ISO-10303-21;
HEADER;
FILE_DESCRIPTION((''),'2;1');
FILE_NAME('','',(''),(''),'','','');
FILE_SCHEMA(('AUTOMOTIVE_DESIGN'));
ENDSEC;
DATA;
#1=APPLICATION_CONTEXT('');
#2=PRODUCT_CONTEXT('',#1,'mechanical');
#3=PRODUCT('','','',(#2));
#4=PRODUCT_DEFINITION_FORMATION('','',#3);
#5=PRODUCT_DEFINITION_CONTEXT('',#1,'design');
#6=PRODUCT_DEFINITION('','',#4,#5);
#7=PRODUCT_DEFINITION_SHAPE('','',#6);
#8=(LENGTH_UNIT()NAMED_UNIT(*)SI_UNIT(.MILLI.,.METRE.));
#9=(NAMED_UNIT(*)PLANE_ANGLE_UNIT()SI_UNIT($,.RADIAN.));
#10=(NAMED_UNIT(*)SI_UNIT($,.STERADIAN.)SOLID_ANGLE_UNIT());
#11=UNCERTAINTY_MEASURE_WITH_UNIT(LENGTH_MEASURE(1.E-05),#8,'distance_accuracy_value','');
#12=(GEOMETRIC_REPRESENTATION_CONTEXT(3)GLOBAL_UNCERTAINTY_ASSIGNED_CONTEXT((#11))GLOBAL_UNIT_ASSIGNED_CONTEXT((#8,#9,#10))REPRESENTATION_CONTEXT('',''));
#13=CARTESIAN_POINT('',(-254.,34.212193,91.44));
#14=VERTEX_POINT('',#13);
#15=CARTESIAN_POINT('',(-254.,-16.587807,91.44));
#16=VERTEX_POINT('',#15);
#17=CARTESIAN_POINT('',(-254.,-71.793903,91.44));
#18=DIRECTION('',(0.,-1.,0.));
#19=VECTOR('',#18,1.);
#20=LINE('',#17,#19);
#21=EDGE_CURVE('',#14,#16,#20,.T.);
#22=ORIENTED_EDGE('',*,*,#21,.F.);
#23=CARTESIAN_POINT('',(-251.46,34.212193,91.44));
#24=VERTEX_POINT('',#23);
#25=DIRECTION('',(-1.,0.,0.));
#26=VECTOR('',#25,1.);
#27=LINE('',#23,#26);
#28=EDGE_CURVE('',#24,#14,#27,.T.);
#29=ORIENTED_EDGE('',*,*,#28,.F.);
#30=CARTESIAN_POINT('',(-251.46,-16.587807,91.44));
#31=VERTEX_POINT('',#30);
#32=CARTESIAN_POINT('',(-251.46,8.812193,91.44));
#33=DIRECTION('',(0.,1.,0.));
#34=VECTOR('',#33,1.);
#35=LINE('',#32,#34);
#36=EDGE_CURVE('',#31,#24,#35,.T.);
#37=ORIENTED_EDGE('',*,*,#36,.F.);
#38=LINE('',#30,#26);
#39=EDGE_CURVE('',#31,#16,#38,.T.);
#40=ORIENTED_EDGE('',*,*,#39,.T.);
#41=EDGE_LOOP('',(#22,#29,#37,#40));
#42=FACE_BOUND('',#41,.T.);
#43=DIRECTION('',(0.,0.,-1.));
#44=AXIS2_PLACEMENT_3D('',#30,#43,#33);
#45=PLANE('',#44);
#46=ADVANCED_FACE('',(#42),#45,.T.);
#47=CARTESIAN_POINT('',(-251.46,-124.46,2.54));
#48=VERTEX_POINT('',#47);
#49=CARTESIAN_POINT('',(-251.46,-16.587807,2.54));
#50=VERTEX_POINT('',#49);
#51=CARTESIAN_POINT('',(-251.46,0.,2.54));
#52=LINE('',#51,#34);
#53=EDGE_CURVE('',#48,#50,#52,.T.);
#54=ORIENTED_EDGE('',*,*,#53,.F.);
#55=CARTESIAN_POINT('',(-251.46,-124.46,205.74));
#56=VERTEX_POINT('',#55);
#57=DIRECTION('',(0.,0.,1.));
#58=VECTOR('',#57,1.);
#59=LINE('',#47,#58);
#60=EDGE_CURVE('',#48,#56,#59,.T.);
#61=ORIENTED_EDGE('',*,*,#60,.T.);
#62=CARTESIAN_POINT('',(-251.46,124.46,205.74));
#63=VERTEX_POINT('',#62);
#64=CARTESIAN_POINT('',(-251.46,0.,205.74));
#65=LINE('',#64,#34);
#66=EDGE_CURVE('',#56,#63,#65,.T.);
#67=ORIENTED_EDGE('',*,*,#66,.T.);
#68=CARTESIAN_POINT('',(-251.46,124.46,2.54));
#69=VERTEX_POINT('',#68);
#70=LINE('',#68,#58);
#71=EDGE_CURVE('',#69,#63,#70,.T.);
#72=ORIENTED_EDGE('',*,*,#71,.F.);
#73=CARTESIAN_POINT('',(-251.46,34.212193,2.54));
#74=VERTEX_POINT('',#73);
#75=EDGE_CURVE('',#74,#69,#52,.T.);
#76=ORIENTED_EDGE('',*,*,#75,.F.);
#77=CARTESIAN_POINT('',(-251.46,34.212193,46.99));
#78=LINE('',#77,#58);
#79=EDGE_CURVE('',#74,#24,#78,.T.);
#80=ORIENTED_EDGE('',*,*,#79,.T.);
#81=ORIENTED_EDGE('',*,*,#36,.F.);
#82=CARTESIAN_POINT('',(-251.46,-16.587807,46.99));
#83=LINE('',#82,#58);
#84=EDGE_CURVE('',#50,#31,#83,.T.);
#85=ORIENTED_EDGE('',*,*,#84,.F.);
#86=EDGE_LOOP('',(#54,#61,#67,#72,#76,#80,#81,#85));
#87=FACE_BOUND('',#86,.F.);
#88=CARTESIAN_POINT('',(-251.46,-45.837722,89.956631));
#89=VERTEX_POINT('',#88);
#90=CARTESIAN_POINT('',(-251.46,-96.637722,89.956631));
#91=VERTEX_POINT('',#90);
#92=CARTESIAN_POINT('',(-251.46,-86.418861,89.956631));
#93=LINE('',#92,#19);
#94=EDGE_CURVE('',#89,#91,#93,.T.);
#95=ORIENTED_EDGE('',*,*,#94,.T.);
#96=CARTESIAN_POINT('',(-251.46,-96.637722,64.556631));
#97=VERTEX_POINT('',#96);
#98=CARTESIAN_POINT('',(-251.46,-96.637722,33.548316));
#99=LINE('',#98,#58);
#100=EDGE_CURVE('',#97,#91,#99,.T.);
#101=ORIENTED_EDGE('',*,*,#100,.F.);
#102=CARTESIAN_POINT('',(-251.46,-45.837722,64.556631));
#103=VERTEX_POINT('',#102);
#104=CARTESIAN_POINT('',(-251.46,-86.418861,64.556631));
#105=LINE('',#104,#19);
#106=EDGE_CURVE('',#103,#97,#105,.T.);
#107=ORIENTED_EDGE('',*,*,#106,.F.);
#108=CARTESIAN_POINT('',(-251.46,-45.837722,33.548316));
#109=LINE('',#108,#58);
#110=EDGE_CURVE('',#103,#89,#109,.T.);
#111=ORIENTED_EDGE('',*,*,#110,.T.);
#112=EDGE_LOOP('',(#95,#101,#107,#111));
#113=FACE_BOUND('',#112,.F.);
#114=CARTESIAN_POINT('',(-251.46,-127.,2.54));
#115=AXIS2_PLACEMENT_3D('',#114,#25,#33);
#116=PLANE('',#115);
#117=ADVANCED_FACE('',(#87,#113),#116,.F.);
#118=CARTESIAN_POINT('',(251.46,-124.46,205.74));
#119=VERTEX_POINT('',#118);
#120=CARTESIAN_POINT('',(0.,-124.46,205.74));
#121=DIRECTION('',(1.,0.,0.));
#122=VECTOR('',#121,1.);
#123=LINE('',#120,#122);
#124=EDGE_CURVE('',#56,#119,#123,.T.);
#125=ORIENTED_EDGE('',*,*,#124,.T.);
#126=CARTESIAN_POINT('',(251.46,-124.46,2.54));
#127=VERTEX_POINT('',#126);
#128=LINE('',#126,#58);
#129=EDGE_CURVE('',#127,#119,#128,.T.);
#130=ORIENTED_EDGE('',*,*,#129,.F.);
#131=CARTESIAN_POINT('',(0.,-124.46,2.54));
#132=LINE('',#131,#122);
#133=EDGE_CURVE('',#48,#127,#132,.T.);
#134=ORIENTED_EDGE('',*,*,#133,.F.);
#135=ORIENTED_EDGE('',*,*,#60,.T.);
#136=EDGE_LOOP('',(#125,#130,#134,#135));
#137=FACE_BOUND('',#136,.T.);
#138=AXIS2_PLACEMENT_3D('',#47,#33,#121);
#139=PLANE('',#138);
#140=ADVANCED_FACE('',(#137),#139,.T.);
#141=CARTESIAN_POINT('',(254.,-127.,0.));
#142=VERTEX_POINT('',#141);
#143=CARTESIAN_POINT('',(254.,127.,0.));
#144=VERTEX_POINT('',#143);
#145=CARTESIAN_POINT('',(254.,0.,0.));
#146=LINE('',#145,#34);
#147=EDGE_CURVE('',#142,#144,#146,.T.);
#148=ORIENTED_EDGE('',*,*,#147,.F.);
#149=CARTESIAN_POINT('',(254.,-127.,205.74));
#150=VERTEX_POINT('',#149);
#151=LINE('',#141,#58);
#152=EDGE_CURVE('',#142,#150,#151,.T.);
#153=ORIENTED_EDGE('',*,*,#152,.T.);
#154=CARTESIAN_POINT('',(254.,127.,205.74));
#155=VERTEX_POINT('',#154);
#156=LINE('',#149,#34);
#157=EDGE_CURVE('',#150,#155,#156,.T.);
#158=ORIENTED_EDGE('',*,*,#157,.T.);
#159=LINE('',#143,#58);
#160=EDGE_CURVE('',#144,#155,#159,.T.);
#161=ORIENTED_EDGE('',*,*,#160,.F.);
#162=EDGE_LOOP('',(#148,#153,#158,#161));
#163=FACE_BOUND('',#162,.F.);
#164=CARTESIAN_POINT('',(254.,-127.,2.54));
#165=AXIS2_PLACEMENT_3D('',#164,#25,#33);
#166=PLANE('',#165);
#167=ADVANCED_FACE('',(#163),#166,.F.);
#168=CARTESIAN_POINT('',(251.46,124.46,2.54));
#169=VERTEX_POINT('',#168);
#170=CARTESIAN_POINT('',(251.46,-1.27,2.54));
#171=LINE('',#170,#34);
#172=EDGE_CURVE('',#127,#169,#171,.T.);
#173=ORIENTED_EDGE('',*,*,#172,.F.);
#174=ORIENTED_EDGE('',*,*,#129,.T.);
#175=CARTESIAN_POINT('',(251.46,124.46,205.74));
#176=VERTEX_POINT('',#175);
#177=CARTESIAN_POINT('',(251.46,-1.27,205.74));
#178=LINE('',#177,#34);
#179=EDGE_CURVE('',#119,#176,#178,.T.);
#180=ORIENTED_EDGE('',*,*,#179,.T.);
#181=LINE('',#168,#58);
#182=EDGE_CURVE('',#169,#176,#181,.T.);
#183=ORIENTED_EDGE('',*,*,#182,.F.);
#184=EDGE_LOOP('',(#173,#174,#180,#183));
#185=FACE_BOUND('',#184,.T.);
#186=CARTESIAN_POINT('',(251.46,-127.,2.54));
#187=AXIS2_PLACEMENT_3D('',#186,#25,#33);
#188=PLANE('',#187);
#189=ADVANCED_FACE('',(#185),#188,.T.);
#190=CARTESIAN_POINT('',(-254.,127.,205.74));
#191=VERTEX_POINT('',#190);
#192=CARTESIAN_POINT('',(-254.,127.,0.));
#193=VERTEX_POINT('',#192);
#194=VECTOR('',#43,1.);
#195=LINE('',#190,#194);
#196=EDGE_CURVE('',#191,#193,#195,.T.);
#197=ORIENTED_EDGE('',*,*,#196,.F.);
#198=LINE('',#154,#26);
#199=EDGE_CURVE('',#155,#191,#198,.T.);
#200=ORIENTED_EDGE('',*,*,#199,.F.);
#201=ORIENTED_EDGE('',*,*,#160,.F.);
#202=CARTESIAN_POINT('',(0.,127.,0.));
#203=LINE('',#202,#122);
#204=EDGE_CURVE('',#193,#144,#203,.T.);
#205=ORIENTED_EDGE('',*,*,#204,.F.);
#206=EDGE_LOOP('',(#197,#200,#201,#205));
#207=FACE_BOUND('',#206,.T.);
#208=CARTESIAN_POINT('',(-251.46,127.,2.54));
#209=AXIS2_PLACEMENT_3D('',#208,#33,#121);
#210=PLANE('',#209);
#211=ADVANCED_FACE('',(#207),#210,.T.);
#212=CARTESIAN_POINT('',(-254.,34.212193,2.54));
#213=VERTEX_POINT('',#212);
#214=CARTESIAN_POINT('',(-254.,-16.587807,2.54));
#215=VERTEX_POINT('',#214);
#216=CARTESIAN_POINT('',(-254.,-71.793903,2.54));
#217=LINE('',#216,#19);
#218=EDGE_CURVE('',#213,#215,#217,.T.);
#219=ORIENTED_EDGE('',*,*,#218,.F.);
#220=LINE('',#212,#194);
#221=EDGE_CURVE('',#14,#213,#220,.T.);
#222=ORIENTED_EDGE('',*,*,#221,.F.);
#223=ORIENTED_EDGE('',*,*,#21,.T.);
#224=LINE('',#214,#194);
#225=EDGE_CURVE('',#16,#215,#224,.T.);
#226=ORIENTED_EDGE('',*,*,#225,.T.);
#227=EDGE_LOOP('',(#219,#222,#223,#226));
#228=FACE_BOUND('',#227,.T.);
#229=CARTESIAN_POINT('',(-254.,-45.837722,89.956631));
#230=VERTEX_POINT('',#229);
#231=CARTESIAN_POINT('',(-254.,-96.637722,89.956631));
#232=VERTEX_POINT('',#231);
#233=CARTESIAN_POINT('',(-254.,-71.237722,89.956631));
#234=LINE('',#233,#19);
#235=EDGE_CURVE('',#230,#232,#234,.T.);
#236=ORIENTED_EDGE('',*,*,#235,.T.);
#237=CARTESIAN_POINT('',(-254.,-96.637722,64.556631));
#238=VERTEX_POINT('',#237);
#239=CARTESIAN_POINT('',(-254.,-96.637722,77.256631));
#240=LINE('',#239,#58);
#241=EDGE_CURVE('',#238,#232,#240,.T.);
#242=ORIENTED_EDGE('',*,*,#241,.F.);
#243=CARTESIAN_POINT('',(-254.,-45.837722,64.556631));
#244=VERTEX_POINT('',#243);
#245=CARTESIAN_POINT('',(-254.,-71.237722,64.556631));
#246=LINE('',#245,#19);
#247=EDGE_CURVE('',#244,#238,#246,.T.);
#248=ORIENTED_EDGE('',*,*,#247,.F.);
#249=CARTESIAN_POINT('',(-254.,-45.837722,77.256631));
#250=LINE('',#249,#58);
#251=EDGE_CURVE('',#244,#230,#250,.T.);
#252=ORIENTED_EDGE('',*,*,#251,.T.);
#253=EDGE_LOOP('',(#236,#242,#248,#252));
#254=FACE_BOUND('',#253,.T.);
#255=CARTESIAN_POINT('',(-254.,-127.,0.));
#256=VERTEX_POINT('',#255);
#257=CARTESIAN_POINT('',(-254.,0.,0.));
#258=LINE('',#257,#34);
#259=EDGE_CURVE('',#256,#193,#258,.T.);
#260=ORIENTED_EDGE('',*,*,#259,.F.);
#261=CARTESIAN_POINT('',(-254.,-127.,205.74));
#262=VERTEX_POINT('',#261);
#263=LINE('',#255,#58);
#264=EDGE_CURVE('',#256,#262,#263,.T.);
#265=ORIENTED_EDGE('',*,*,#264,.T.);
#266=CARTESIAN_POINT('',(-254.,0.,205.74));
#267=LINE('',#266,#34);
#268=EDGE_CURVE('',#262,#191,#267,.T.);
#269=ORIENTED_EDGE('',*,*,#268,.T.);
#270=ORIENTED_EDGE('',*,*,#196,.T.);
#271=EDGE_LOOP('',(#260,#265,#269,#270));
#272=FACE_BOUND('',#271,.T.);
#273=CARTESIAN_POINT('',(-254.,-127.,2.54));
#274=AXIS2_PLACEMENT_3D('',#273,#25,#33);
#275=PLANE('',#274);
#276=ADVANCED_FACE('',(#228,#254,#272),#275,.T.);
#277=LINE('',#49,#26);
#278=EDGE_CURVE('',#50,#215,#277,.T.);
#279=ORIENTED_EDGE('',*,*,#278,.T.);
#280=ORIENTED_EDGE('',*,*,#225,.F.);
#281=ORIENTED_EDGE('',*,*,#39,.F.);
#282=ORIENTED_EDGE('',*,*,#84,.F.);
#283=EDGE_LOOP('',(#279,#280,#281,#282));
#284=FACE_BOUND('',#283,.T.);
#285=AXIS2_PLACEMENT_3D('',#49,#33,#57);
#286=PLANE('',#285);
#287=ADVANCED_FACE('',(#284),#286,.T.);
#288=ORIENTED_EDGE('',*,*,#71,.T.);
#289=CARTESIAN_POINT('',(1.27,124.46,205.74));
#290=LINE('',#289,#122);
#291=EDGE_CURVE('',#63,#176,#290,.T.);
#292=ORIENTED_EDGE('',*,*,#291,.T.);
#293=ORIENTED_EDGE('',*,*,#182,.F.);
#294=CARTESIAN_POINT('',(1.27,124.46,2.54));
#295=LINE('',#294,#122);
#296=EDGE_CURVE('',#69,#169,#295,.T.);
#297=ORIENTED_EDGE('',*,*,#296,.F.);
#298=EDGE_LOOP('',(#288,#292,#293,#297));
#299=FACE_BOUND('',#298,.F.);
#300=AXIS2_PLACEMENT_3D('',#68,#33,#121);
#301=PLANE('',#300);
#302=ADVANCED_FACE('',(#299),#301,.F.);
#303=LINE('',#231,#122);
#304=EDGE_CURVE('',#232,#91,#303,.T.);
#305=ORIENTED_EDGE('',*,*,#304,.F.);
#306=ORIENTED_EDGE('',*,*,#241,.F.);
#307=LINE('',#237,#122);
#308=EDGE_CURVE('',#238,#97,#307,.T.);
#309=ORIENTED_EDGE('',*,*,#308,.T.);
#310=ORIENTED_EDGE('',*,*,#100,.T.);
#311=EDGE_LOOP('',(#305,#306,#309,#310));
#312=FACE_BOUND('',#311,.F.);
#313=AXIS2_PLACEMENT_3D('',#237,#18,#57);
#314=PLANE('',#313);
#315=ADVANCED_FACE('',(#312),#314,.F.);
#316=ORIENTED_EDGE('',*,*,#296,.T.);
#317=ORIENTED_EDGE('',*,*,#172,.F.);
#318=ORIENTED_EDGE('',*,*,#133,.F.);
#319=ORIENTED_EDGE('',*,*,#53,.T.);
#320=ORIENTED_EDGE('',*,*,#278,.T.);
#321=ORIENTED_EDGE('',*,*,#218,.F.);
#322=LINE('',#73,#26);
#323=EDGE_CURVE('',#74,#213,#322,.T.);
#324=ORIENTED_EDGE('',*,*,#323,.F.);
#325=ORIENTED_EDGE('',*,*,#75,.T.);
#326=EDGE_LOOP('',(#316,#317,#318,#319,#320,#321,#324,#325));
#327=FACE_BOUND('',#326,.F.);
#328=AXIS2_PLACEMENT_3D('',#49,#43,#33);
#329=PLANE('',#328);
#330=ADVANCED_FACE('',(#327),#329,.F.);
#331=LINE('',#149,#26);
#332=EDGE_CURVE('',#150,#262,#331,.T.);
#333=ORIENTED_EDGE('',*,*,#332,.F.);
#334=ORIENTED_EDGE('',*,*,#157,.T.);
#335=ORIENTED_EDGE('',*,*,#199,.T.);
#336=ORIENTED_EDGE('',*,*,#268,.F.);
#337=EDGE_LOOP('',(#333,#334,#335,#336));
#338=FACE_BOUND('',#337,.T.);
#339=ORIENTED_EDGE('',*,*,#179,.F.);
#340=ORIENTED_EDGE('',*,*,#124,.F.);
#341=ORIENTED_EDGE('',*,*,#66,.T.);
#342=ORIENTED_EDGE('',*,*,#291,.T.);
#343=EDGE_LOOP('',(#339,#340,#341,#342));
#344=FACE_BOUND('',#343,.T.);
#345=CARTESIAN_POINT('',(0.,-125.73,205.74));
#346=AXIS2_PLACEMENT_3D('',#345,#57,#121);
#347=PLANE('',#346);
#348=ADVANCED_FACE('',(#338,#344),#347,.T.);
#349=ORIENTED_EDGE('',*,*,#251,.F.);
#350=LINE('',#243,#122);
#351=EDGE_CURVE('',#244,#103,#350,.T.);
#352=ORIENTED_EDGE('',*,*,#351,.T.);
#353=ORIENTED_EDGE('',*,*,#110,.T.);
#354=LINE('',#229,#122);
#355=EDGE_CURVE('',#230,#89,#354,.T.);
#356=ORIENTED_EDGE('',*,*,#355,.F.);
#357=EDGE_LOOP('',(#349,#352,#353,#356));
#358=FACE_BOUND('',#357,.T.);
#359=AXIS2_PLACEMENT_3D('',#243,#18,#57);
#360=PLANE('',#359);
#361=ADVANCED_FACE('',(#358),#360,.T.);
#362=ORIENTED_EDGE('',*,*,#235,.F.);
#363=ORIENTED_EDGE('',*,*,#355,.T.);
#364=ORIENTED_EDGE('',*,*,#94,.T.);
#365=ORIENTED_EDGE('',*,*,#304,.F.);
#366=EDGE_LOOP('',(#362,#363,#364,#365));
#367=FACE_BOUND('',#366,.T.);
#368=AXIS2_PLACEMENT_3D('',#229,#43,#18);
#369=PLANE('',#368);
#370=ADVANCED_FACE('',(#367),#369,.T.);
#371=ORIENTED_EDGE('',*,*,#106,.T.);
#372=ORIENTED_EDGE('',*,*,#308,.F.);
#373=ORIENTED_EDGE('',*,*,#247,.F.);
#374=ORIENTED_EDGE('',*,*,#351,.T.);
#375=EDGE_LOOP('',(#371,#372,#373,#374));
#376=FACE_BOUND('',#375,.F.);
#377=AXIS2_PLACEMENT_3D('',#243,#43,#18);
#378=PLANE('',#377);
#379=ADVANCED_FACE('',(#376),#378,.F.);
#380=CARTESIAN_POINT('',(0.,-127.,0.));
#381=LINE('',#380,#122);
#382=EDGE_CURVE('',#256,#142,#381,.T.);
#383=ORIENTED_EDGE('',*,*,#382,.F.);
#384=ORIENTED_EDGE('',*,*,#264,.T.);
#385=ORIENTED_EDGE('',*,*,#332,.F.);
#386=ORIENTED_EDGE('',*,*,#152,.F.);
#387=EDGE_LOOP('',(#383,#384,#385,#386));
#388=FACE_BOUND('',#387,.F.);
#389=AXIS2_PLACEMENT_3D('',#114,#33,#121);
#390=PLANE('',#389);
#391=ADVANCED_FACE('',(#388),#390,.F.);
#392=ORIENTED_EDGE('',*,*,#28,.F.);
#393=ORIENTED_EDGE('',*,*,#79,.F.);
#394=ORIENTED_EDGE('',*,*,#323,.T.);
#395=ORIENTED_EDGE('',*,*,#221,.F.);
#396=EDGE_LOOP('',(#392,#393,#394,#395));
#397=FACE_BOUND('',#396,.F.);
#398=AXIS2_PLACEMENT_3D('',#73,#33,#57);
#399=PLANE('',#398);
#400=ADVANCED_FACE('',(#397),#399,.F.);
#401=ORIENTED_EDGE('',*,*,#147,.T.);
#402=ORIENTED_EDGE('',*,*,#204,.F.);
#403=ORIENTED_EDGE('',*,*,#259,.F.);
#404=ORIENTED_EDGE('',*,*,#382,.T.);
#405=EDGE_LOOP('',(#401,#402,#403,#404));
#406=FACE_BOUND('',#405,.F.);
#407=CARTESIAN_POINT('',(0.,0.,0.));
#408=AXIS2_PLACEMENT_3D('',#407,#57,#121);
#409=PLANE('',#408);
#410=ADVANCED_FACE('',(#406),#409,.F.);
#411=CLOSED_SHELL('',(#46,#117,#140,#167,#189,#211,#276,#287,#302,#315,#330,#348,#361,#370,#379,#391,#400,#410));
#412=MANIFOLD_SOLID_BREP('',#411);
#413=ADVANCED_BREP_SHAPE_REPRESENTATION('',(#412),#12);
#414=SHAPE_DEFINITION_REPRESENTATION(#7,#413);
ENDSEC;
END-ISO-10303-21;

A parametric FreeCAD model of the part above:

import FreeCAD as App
import Part
import Sketcher
from FreeCAD import Vector
Q = App.Units.Quantity


def add_polygon(sketch, points):
    """Adds a closed chain of lines whose ends are joined by coincident constraints."""
    first, n = sketch.GeometryCount, len(points)
    for a, b in zip(points, points[1:] + points[:1]):
        sketch.addGeometry(Part.LineSegment(App.Vector(*a, 0), App.Vector(*b, 0)), False)
    for i in range(n):
        sketch.addConstraint(Sketcher.Constraint("Coincident", first + i, 2, first + (i + 1) % n, 1))

doc = App.newDocument("Part")
body = doc.addObject("PartDesign::Body", "Body")

sketch1 = body.newObject("Sketcher::SketchObject", "Sketch")
sketch1.AttachmentSupport = (doc.getObject("XY_Plane"), [""])
sketch1.MapMode = "FlatFace"
add_polygon(sketch1, [(-254, 127), (-254, -127), (254, -127), (254, 127)])
sketch1.addConstraint([
    Sketcher.Constraint("Vertical", 0),
    Sketcher.Constraint("Horizontal", 1),
    Sketcher.Constraint("Vertical", 2),
    Sketcher.Constraint("Horizontal", 3),
    Sketcher.Constraint("Symmetric", 0, 2, 2, 2, -1, 1),
    Sketcher.Constraint("DistanceX", 1, 1, 1, 2, Q("20 in")),
    Sketcher.Constraint("DistanceY", 0, 2, 0, 1, Q("10 in")),
])
pad1 = body.newObject("PartDesign::Pad", "Pad")
pad1.Profile = sketch1
pad1.Length = Q("0.1 in")

sketch2 = body.newObject("Sketcher::SketchObject", "Sketch001")
sketch2.AttachmentSupport = (doc.getObject("XY_Plane"), [""])
sketch2.MapMode = "FlatFace"
sketch2.AttachmentOffset = App.Placement(Vector(0, 0, 0.1 * 25.4), App.Rotation())
add_polygon(sketch2, [(-254, 127), (-254, -127), (-251.5, -127), (-251.5, 127)])
sketch2.addConstraint([
    Sketcher.Constraint("Vertical", 0),
    Sketcher.Constraint("Horizontal", 1),
    Sketcher.Constraint("Vertical", 2),
    Sketcher.Constraint("Horizontal", 3),
    Sketcher.Constraint("DistanceY", 0, 2, 0, 1, Q("10 in")),
    Sketcher.Constraint("DistanceX", 1, 1, 1, 2, Q("0.1 in")),
    Sketcher.Constraint("DistanceX", 0, 2, -1, 1, Q("10 in")),
    Sketcher.Constraint("DistanceY", 0, 2, -1, 1, Q("5 in")),
])
pad2 = body.newObject("PartDesign::Pad", "Pad001")
pad2.Profile = sketch2
pad2.Length = Q("8 in")

sketch3 = body.newObject("Sketcher::SketchObject", "Sketch002")
sketch3.AttachmentSupport = (doc.getObject("XY_Plane"), [""])
sketch3.MapMode = "FlatFace"
sketch3.AttachmentOffset = App.Placement(Vector(0, 0, 0.1 * 25.4), App.Rotation())
add_polygon(sketch3, [(-251.5, 127), (-251.5, 124.5), (254, 124.5), (254, 127)])
sketch3.addConstraint([
    Sketcher.Constraint("Vertical", 0),
    Sketcher.Constraint("Horizontal", 1),
    Sketcher.Constraint("Vertical", 2),
    Sketcher.Constraint("Horizontal", 3),
    Sketcher.Constraint("DistanceX", 1, 1, 1, 2, Q("19.9 in")),
    Sketcher.Constraint("DistanceY", 0, 2, 0, 1, Q("0.1 in")),
    Sketcher.Constraint("DistanceX", -1, 1, 1, 2, Q("10 in")),
    Sketcher.Constraint("DistanceY", -1, 1, 2, 2, Q("5 in")),
])
pad3 = body.newObject("PartDesign::Pad", "Pad002")
pad3.Profile = sketch3
pad3.Length = Q("8 in")

sketch4 = body.newObject("Sketcher::SketchObject", "Sketch003")
sketch4.AttachmentSupport = (doc.getObject("XY_Plane"), [""])
sketch4.MapMode = "FlatFace"
sketch4.AttachmentOffset = App.Placement(Vector(0, 0, 0.1 * 25.4), App.Rotation())
add_polygon(sketch4, [(251.5, 124.5), (251.5, -127), (254, -127), (254, 124.5)])
sketch4.addConstraint([
    Sketcher.Constraint("Vertical", 0),
    Sketcher.Constraint("Horizontal", 1),
    Sketcher.Constraint("Vertical", 2),
    Sketcher.Constraint("Horizontal", 3),
    Sketcher.Constraint("DistanceX", 1, 1, 1, 2, Q("0.1 in")),
    Sketcher.Constraint("DistanceY", 0, 2, 0, 1, Q("9.9 in")),
    Sketcher.Constraint("DistanceY", 0, 2, -1, 1, Q("5 in")),
    Sketcher.Constraint("DistanceX", -1, 1, 1, 2, Q("10 in")),
])
pad4 = body.newObject("PartDesign::Pad", "Pad003")
pad4.Profile = sketch4
pad4.Length = Q("8 in")

sketch5 = body.newObject("Sketcher::SketchObject", "Sketch004")
sketch5.AttachmentSupport = (doc.getObject("XY_Plane"), [""])
sketch5.MapMode = "FlatFace"
sketch5.AttachmentOffset = App.Placement(Vector(0, 0, 0.1 * 25.4), App.Rotation())
add_polygon(sketch5, [(-251.5, -124.5), (-251.5, -127), (251.5, -127), (251.5, -124.5)])
sketch5.addConstraint([
    Sketcher.Constraint("Vertical", 0),
    Sketcher.Constraint("Horizontal", 1),
    Sketcher.Constraint("Vertical", 2),
    Sketcher.Constraint("Horizontal", 3),
    Sketcher.Constraint("DistanceX", 1, 1, 1, 2, Q("19.8 in")),
    Sketcher.Constraint("DistanceY", 0, 2, 0, 1, Q("0.1 in")),
    Sketcher.Constraint("DistanceY", 0, 2, -1, 1, Q("5 in")),
    Sketcher.Constraint("DistanceX", 0, 2, -1, 1, Q("9.9 in")),
])
pad5 = body.newObject("PartDesign::Pad", "Pad004")
pad5.Profile = sketch5
pad5.Length = Q("8 in")

sketch6 = body.newObject("Sketcher::SketchObject", "Sketch005")
sketch6.AttachmentSupport = (doc.getObject("YZ_Plane"), [""])
sketch6.MapMode = "FlatFace"
sketch6.AttachmentOffset = App.Placement(Vector(0, 0, -9.9 * 25.4), App.Rotation())
add_polygon(sketch6, [(-17, 91), (-17, 3), (34, 3), (34, 91)])
sketch6.addConstraint([
    Sketcher.Constraint("Vertical", 0),
    Sketcher.Constraint("Horizontal", 1),
    Sketcher.Constraint("Vertical", 2),
    Sketcher.Constraint("Horizontal", 3),
    Sketcher.Constraint("DistanceX", 1, 1, 1, 2, Q("2 in")),
    Sketcher.Constraint("DistanceY", 0, 2, 0, 1, Q("3.5 in")),
    Sketcher.Constraint("DistanceY", -1, 1, 0, 2, Q("0.1 in")),
    Sketcher.Constraint("DistanceX", 0, 2, -1, 1, 16.587807),
])
pocket1 = body.newObject("PartDesign::Pocket", "Pocket")
pocket1.Profile = sketch6
pocket1.Length = Q("1 in")

sketch7 = body.newObject("Sketcher::SketchObject", "Sketch006")
sketch7.AttachmentSupport = (doc.getObject("YZ_Plane"), [""])
sketch7.MapMode = "FlatFace"
sketch7.AttachmentOffset = App.Placement(Vector(0, 0, -10 * 25.4), App.Rotation())
add_polygon(sketch7, [(-46, 90), (-46, 65), (-97, 65), (-97, 90)])
sketch7.addConstraint([
    Sketcher.Constraint("Vertical", 0),
    Sketcher.Constraint("Horizontal", 1),
    Sketcher.Constraint("Vertical", 2),
    Sketcher.Constraint("Horizontal", 3),
    Sketcher.Constraint("DistanceX", 1, 2, 1, 1, Q("2 in")),
    Sketcher.Constraint("DistanceY", 0, 2, 0, 1, Q("1 in")),
    Sketcher.Constraint("DistanceY", -1, 1, 0, 2, 64.556631),
    Sketcher.Constraint("DistanceX", 1, 2, -1, 1, 96.637722),
])
pocket2 = body.newObject("PartDesign::Pocket", "Pocket001")
pocket2.Profile = sketch7
pocket2.Length = Q("1 in")
pocket2.Reversed = True

doc.recompute()
